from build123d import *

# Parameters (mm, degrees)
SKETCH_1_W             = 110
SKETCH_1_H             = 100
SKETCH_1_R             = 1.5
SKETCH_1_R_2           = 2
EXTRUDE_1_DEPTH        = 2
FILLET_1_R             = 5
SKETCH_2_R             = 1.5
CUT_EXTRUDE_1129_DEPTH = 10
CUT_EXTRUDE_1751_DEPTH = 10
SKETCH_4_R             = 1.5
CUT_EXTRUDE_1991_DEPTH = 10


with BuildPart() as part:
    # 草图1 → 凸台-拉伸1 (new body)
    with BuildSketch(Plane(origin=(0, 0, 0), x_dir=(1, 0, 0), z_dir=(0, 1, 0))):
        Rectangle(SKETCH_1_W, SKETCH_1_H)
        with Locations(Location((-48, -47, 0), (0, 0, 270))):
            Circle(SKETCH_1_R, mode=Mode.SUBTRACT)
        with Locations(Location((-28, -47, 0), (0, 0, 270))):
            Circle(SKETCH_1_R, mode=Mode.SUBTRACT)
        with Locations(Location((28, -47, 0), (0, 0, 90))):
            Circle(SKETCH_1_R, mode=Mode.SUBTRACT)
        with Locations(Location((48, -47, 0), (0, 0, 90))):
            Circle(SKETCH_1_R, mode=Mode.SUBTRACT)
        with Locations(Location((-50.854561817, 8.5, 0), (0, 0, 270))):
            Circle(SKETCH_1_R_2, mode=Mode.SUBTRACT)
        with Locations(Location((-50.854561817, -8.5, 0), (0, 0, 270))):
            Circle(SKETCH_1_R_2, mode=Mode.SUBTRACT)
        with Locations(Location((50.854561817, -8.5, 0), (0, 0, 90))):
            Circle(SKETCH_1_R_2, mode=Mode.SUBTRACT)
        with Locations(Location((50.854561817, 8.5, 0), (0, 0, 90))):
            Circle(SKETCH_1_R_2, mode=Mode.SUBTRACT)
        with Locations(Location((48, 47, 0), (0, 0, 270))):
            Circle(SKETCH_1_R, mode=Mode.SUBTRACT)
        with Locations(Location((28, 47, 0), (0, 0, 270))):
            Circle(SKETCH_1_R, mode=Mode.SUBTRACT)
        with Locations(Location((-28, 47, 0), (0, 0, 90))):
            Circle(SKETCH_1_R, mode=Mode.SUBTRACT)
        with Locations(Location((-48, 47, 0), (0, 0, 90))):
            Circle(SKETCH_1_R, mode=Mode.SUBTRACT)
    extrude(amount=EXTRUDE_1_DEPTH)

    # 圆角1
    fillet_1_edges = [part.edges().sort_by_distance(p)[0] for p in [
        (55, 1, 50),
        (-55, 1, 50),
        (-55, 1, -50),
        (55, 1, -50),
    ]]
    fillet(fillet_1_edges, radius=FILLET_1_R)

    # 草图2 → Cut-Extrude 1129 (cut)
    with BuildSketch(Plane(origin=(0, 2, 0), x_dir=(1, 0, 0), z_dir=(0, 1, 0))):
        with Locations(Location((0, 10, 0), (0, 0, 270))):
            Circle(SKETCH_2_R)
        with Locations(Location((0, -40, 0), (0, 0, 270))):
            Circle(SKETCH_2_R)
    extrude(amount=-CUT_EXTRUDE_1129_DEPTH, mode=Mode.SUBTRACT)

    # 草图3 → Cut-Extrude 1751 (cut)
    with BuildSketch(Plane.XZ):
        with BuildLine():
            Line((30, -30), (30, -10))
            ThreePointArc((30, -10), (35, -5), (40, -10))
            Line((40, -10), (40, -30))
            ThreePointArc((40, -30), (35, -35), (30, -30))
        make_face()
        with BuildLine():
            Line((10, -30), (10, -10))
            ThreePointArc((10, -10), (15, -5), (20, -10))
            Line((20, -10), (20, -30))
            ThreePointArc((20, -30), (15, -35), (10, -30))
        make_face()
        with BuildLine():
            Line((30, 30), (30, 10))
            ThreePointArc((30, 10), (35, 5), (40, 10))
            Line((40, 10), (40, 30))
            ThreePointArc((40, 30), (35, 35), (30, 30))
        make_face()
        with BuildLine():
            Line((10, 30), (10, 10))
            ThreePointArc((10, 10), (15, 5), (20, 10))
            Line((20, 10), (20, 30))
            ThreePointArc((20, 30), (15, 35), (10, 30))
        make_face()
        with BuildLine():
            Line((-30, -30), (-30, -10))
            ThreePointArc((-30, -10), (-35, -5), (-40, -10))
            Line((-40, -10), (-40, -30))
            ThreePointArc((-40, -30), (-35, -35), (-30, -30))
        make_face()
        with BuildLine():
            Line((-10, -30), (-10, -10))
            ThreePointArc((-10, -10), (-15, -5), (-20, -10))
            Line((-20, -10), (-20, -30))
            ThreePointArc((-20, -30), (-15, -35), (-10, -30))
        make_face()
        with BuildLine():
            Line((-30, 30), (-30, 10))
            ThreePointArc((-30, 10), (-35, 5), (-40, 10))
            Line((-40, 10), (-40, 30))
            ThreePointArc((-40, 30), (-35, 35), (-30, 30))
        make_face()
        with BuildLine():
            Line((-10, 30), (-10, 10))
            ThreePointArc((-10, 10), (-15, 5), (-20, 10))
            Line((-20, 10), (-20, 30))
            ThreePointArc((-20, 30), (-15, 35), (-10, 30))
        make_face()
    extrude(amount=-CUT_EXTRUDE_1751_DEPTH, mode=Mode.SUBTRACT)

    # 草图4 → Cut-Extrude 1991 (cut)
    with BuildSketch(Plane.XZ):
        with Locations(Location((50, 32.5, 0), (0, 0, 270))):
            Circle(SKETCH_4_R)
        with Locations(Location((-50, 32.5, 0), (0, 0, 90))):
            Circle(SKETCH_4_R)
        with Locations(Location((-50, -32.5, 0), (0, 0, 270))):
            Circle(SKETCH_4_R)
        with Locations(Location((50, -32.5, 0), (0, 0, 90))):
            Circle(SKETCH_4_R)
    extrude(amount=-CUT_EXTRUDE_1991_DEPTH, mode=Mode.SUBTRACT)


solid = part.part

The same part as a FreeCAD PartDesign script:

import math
import FreeCAD as App
import Part
import Sketcher


def edges_at(feature, points):
    """Names of the edges that pass closest to the given points."""
    edges = feature.Shape.Edges
    near = lambda p: min(range(len(edges)), key=lambda i: edges[i].distToShape(Part.Vertex(*p))[0])
    return sorted({f"Edge{near(p) + 1}" for p in points})

doc = App.newDocument("Part")
body = doc.addObject("PartDesign::Body", "Body")

# Sketch on XZ plane
sketch1 = body.newObject("Sketcher::SketchObject", "Sketch")
sketch1.AttachmentSupport = (doc.getObject("XZ_Plane"), [""])
sketch1.MapMode = "FlatFace"
sketch1.addGeometry([
    Part.LineSegment(App.Vector(-55, -50, 0), App.Vector(-55, 50, 0)),  # 0
    Part.LineSegment(App.Vector(-55, 50, 0), App.Vector(55, 50, 0)),  # 1
    Part.LineSegment(App.Vector(55, 50, 0), App.Vector(55, -50, 0)),  # 2
    Part.LineSegment(App.Vector(55, -50, 0), App.Vector(-55, -50, 0)),  # 3
    Part.Circle(App.Vector(-48, 47, 0), App.Vector(0, 0, 1), 1.5),  # 4
    Part.Circle(App.Vector(-28, 47, 0), App.Vector(0, 0, 1), 1.5),  # 5
    Part.Circle(App.Vector(-50.854562, 8.5, 0), App.Vector(0, 0, 1), 2),  # 6
    Part.Circle(App.Vector(28, 47, 0), App.Vector(0, 0, 1), 1.5),  # 7
    Part.Circle(App.Vector(48, 47, 0), App.Vector(0, 0, 1), 1.5),  # 8
    Part.Circle(App.Vector(50.854562, 8.5, 0), App.Vector(0, 0, 1), 2),  # 9
    Part.Circle(App.Vector(-50.854562, -8.5, 0), App.Vector(0, 0, 1), 2),  # 10
    Part.Circle(App.Vector(-48, -47, 0), App.Vector(0, 0, 1), 1.5),  # 11
    Part.Circle(App.Vector(-28, -47, 0), App.Vector(0, 0, 1), 1.5),  # 12
    Part.Circle(App.Vector(50.854562, -8.5, 0), App.Vector(0, 0, 1), 2),  # 13
    Part.Circle(App.Vector(28, -47, 0), App.Vector(0, 0, 1), 1.5),  # 14
    Part.Circle(App.Vector(48, -47, 0), App.Vector(0, 0, 1), 1.5),  # 15
], False)
sketch1.addConstraint([
    Sketcher.Constraint("Coincident", 0, 2, 1, 1),
    Sketcher.Constraint("Coincident", 1, 2, 2, 1),
    Sketcher.Constraint("Coincident", 2, 2, 3, 1),
    Sketcher.Constraint("Coincident", 3, 2, 0, 1),
    Sketcher.Constraint("Vertical", 0),
    Sketcher.Constraint("Horizontal", 1),
    Sketcher.Constraint("Vertical", 2),
    Sketcher.Constraint("Horizontal", 3),
    Sketcher.Constraint("Equal", 4, 5),
    Sketcher.Constraint("Equal", 5, 7),
    Sketcher.Constraint("Equal", 7, 8),
    Sketcher.Constraint("Equal", 6, 9),
    Sketcher.Constraint("Equal", 9, 10),
    Sketcher.Constraint("Equal", 8, 11),
    Sketcher.Constraint("Equal", 11, 12),
    Sketcher.Constraint("Equal", 10, 13),
    Sketcher.Constraint("Equal", 12, 14),
    Sketcher.Constraint("Equal", 14, 15),
    Sketcher.Constraint("Symmetric", 9, 3, 10, 3, -1, 1),
    Sketcher.Constraint("Symmetric", 8, 3, 11, 3, -1, 1),
    Sketcher.Constraint("Symmetric", 7, 3, 12, 3, -1, 1),
    Sketcher.Constraint("Symmetric", 6, 3, 13, 3, -1, 1),
    Sketcher.Constraint("Symmetric", 5, 3, 14, 3, -1, 1),
    Sketcher.Constraint("Symmetric", 4, 3, 15, 3, -1, 1),
    Sketcher.Constraint("Symmetric", 0, 2, 2, 2, -1, 1),
    Sketcher.Constraint("Symmetric", 5, 3, 7, 3, -2),
    Sketcher.Constraint("Symmetric", 4, 3, 8, 3, -2),
    Sketcher.Constraint("Symmetric", 6, 3, 9, 3, -2),
    Sketcher.Constraint("Horizontal", 4, 3, 5, 3),
    Sketcher.Constraint("Diameter", 4, 3.0),
    Sketcher.Constraint("Diameter", 6, 4.0),
    Sketcher.Constraint("DistanceX", 1, 1, 1, 2, 110.0),
    Sketcher.Constraint("DistanceY", 0, 1, 0, 2, 100.0),
    Sketcher.Constraint("DistanceX", 4, 3, -1, 1, 48.0),
    Sketcher.Constraint("DistanceY", -1, 1, 4, 3, 47.0),
    Sketcher.Constraint("DistanceX", 5, 3, -1, 1, 28.0),
    Sketcher.Constraint("DistanceY", 10, 3, 6, 3, 17.0),
    Sketcher.Constraint("DistanceX", 6, 3, -1, 1, 50.854562),
])
pad1 = body.newObject("PartDesign::Pad", "Pad")
pad1.Profile = sketch1
pad1.Length = 2
pad1.Reversed = True
doc.recompute()

fillet = body.newObject("PartDesign::Fillet", "Fillet")
fillet.Base = (pad1, edges_at(pad1, [
    (55, 1, 50),
    (-55, 1, 50),
    (-55, 1, -50),
    (55, 1, -50),
]))
fillet.Radius = 5

# Sketch on XZ plane
sketch2 = body.newObject("Sketcher::SketchObject", "Sketch001")
sketch2.AttachmentSupport = (doc.getObject("XZ_Plane"), [""])
sketch2.MapMode = "FlatFace"
sketch2.AttachmentOffset = App.Placement(App.Vector(0, 0, -2), App.Rotation())
sketch2.addGeometry([
    Part.Circle(App.Vector(0, -10, 0), App.Vector(0, 0, 1), 1.5),
    Part.Circle(App.Vector(0, 40, 0), App.Vector(0, 0, 1), 1.5),
], False)
sketch2.addConstraint([
    Sketcher.Constraint("Equal", 0, 1),
    Sketcher.Constraint("PointOnObject", 0, 3, -2),
    Sketcher.Constraint("PointOnObject", 1, 3, -2),
    Sketcher.Constraint("Diameter", 0, 3.0),
    Sketcher.Constraint("DistanceY", 0, 3, -1, 1, 10.0),
    Sketcher.Constraint("DistanceY", -1, 1, 1, 3, 40.0),
])
pocket1 = body.newObject("PartDesign::Pocket", "Pocket")
pocket1.Profile = sketch2
pocket1.Length = 10
pocket1.Reversed = True

# Sketch on XZ plane
sketch3 = body.newObject("Sketcher::SketchObject", "Sketch002")
sketch3.AttachmentSupport = (doc.getObject("XZ_Plane"), [""])
sketch3.MapMode = "FlatFace"
sketch3.addGeometry([
    Part.LineSegment(App.Vector(30, -10, 0), App.Vector(30, -30, 0)),  # 0
    Part.ArcOfCircle(Part.Circle(App.Vector(35, -30, 0), App.Vector(0, 0, 1), 5), math.radians(180), math.radians(360)),  # 1
    Part.LineSegment(App.Vector(40, -30, 0), App.Vector(40, -10, 0)),  # 2
    Part.ArcOfCircle(Part.Circle(App.Vector(35, -10, 0), App.Vector(0, 0, 1), 5), math.radians(0), math.radians(180)),  # 3
    Part.LineSegment(App.Vector(10, -10, 0), App.Vector(10, -30, 0)),  # 4
    Part.ArcOfCircle(Part.Circle(App.Vector(15, -30, 0), App.Vector(0, 0, 1), 5), math.radians(180), math.radians(360)),  # 5
    Part.LineSegment(App.Vector(20, -30, 0), App.Vector(20, -10, 0)),  # 6
    Part.ArcOfCircle(Part.Circle(App.Vector(15, -10, 0), App.Vector(0, 0, 1), 5), math.radians(0), math.radians(180)),  # 7
    Part.LineSegment(App.Vector(30, 30, 0), App.Vector(30, 10, 0)),  # 8
    Part.ArcOfCircle(Part.Circle(App.Vector(35, 10, 0), App.Vector(0, 0, 1), 5), math.radians(180), math.radians(360)),  # 9
    Part.LineSegment(App.Vector(40, 10, 0), App.Vector(40, 30, 0)),  # 10
    Part.ArcOfCircle(Part.Circle(App.Vector(35, 30, 0), App.Vector(0, 0, 1), 5), math.radians(0), math.radians(180)),  # 11
    Part.LineSegment(App.Vector(10, 30, 0), App.Vector(10, 10, 0)),  # 12
    Part.ArcOfCircle(Part.Circle(App.Vector(15, 10, 0), App.Vector(0, 0, 1), 5), math.radians(180), math.radians(360)),  # 13
    Part.LineSegment(App.Vector(20, 10, 0), App.Vector(20, 30, 0)),  # 14
    Part.ArcOfCircle(Part.Circle(App.Vector(15, 30, 0), App.Vector(0, 0, 1), 5), math.radians(0), math.radians(180)),  # 15
    Part.LineSegment(App.Vector(-30, -30, 0), App.Vector(-30, -10, 0)),  # 16
    Part.ArcOfCircle(Part.Circle(App.Vector(-35, -10, 0), App.Vector(0, 0, 1), 5), math.radians(0), math.radians(180)),  # 17
    Part.LineSegment(App.Vector(-40, -10, 0), App.Vector(-40, -30, 0)),  # 18
    Part.ArcOfCircle(Part.Circle(App.Vector(-35, -30, 0), App.Vector(0, 0, 1), 5), math.radians(180), math.radians(360)),  # 19
    Part.LineSegment(App.Vector(-10, -30, 0), App.Vector(-10, -10, 0)),  # 20
    Part.ArcOfCircle(Part.Circle(App.Vector(-15, -10, 0), App.Vector(0, 0, 1), 5), math.radians(0), math.radians(180)),  # 21
    Part.LineSegment(App.Vector(-20, -10, 0), App.Vector(-20, -30, 0)),  # 22
    Part.ArcOfCircle(Part.Circle(App.Vector(-15, -30, 0), App.Vector(0, 0, 1), 5), math.radians(180), math.radians(360)),  # 23
    Part.LineSegment(App.Vector(-30, 10, 0), App.Vector(-30, 30, 0)),  # 24
    Part.ArcOfCircle(Part.Circle(App.Vector(-35, 30, 0), App.Vector(0, 0, 1), 5), math.radians(0), math.radians(180)),  # 25
    Part.LineSegment(App.Vector(-40, 30, 0), App.Vector(-40, 10, 0)),  # 26
    Part.ArcOfCircle(Part.Circle(App.Vector(-35, 10, 0), App.Vector(0, 0, 1), 5), math.radians(180), math.radians(360)),  # 27
    Part.LineSegment(App.Vector(-10, 10, 0), App.Vector(-10, 30, 0)),  # 28
    Part.ArcOfCircle(Part.Circle(App.Vector(-15, 30, 0), App.Vector(0, 0, 1), 5), math.radians(0), math.radians(180)),  # 29
    Part.LineSegment(App.Vector(-20, 30, 0), App.Vector(-20, 10, 0)),  # 30
    Part.ArcOfCircle(Part.Circle(App.Vector(-15, 10, 0), App.Vector(0, 0, 1), 5), math.radians(180), math.radians(360)),  # 31
], False)
sketch3.addConstraint([
    Sketcher.Constraint("Tangent", 0, 2, 1, 1),
    Sketcher.Constraint("Tangent", 1, 2, 2, 1),
    Sketcher.Constraint("Tangent", 2, 2, 3, 1),
    Sketcher.Constraint("Tangent", 3, 2, 0, 1),
    Sketcher.Constraint("Tangent", 4, 2, 5, 1),
    Sketcher.Constraint("Tangent", 5, 2, 6, 1),
    Sketcher.Constraint("Tangent", 6, 2, 7, 1),
    Sketcher.Constraint("Tangent", 7, 2, 4, 1),
    Sketcher.Constraint("Tangent", 8, 2, 9, 1),
    Sketcher.Constraint("Tangent", 9, 2, 10, 1),
    Sketcher.Constraint("Tangent", 10, 2, 11, 1),
    Sketcher.Constraint("Tangent", 11, 2, 8, 1),
    Sketcher.Constraint("Tangent", 12, 2, 13, 1),
    Sketcher.Constraint("Tangent", 13, 2, 14, 1),
    Sketcher.Constraint("Tangent", 14, 2, 15, 1),
    Sketcher.Constraint("Tangent", 15, 2, 12, 1),
    Sketcher.Constraint("Tangent", 16, 2, 17, 1),
    Sketcher.Constraint("Tangent", 17, 2, 18, 1),
    Sketcher.Constraint("Tangent", 18, 2, 19, 1),
    Sketcher.Constraint("Tangent", 19, 2, 16, 1),
    Sketcher.Constraint("Tangent", 20, 2, 21, 1),
    Sketcher.Constraint("Tangent", 21, 2, 22, 1),
    Sketcher.Constraint("Tangent", 22, 2, 23, 1),
    Sketcher.Constraint("Tangent", 23, 2, 20, 1),
    Sketcher.Constraint("Tangent", 24, 2, 25, 1),
    Sketcher.Constraint("Tangent", 25, 2, 26, 1),
    Sketcher.Constraint("Tangent", 26, 2, 27, 1),
    Sketcher.Constraint("Tangent", 27, 2, 24, 1),
    Sketcher.Constraint("Tangent", 28, 2, 29, 1),
    Sketcher.Constraint("Tangent", 29, 2, 30, 1),
    Sketcher.Constraint("Tangent", 30, 2, 31, 1),
    Sketcher.Constraint("Tangent", 31, 2, 28, 1),
    Sketcher.Constraint("Vertical", 0),
    Sketcher.Constraint("Vertical", 2),
    Sketcher.Constraint("Vertical", 4),
    Sketcher.Constraint("Vertical", 6),
    Sketcher.Constraint("Vertical", 8),
    Sketcher.Constraint("Vertical", 10),
    Sketcher.Constraint("Vertical", 12),
    Sketcher.Constraint("Vertical", 14),
    Sketcher.Constraint("Vertical", 16),
    Sketcher.Constraint("Vertical", 18),
    Sketcher.Constraint("Vertical", 20),
    Sketcher.Constraint("Vertical", 22),
    Sketcher.Constraint("Vertical", 24),
    Sketcher.Constraint("Vertical", 26),
    Sketcher.Constraint("Vertical", 28),
    Sketcher.Constraint("Vertical", 30),
    Sketcher.Constraint("Equal", 3, 5),
    Sketcher.Constraint("Equal", 7, 9),
    Sketcher.Constraint("Equal", 11, 13),
    Sketcher.Constraint("Equal", 15, 17),
    Sketcher.Constraint("Equal", 19, 21),
    Sketcher.Constraint("Equal", 23, 25),
    Sketcher.Constraint("Equal", 27, 29),
    Sketcher.Constraint("Symmetric", 9, 3, 17, 3, -1, 1),
    Sketcher.Constraint("Symmetric", 13, 3, 21, 3, -1, 1),
    Sketcher.Constraint("Symmetric", 1, 3, 25, 3, -1, 1),
    Sketcher.Constraint("Symmetric", 5, 3, 29, 3, -1, 1),
    Sketcher.Constraint("Symmetric", 3, 3, 17, 3, -2),
    Sketcher.Constraint("Symmetric", 7, 3, 21, 3, -2),
    Sketcher.Constraint("Horizontal", 1, 3, 5, 3),
    Sketcher.Constraint("Horizontal", 3, 3, 7, 3),
    Sketcher.Constraint("Horizontal", 11, 3, 15, 3),
    Sketcher.Constraint("Horizontal", 5, 3, 19, 3),
    Sketcher.Constraint("Horizontal", 19, 3, 23, 3),
    Sketcher.Constraint("Horizontal", 15, 3, 25, 3),
    Sketcher.Constraint("Horizontal", 13, 3, 27, 3),
    Sketcher.Constraint("Horizontal", 27, 3, 31, 3),
    Sketcher.Constraint("Radius", 1, 5.0),
    Sketcher.Constraint("DistanceY", 0, 2, 0, 1, 20.0),
    Sketcher.Constraint("DistanceX", -1, 1, 1, 3, 35.0),
    Sketcher.Constraint("DistanceY", 1, 3, -1, 1, 30.0),
    Sketcher.Constraint("DistanceX", -1, 1, 5, 3, 15.0),
])
pocket2 = body.newObject("PartDesign::Pocket", "Pocket001")
pocket2.Profile = sketch3
pocket2.Length = 10

# Sketch on XZ plane
sketch4 = body.newObject("Sketcher::SketchObject", "Sketch003")
sketch4.AttachmentSupport = (doc.getObject("XZ_Plane"), [""])
sketch4.MapMode = "FlatFace"
sketch4.addGeometry([
    Part.Circle(App.Vector(50, 32.5, 0), App.Vector(0, 0, 1), 1.5),
    Part.Circle(App.Vector(-50, 32.5, 0), App.Vector(0, 0, 1), 1.5),
    Part.Circle(App.Vector(-50, -32.5, 0), App.Vector(0, 0, 1), 1.5),
    Part.Circle(App.Vector(50, -32.5, 0), App.Vector(0, 0, 1), 1.5),
], False)
sketch4.addConstraint([
    Sketcher.Constraint("Equal", 0, 1),
    Sketcher.Constraint("Equal", 1, 2),
    Sketcher.Constraint("Equal", 2, 3),
    Sketcher.Constraint("Symmetric", 0, 3, 2, 3, -1, 1),
    Sketcher.Constraint("Symmetric", 1, 3, 3, 3, -1, 1),
    Sketcher.Constraint("Symmetric", 0, 3, 1, 3, -2),
    Sketcher.Constraint("Diameter", 0, 3.0),
    Sketcher.Constraint("DistanceX", -1, 1, 0, 3, 50.0),
    Sketcher.Constraint("DistanceY", 2, 3, 1, 3, 65.0),
])
pocket3 = body.newObject("PartDesign::Pocket", "Pocket002")
pocket3.Profile = sketch4
pocket3.Length = 10

doc.recompute()
